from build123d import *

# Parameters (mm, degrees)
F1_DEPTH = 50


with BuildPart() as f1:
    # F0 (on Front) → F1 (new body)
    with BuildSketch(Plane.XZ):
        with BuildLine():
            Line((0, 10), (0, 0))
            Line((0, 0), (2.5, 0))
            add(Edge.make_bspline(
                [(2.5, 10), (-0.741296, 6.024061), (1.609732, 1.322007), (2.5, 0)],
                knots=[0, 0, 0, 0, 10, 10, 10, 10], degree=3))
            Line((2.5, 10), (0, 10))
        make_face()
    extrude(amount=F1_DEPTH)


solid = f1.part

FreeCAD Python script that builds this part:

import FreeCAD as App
import Part
import Sketcher
from FreeCAD import Vector

doc = App.newDocument("Part")
params = doc.addObject("Spreadsheet::Sheet", "Params")
for row, (alias, value) in enumerate([
    ("pad1_length", "50 mm"),
], start=1):
    params.set(f"A{row}", alias)
    params.set(f"B{row}", "=" + value)
    params.setAlias(f"B{row}", alias)

body = doc.addObject("PartDesign::Body", "Body")

# Sketch on XZ plane
sketch1 = body.newObject("Sketcher::SketchObject", "Sketch")
sketch1.AttachmentSupport = (doc.getObject("XZ_Plane"), [""])
sketch1.MapMode = "FlatFace"
sketch1.addGeometry([
    Part.LineSegment(Vector(0, 10, 0), Vector(0, 0, 0)),
    Part.LineSegment(Vector(0, 0, 0), Vector(2.5, 0, 0)),
    Part.BSplineCurve([Vector(2.5, 10, 0), Vector(-0.741296, 6.024061, 0), Vector(1.609732, 1.322007, 0), Vector(2.5, 0, 0)], [4, 4], [0, 10], False, 3, [1, 1, 1, 1], False),
    Part.LineSegment(Vector(2.5, 10, 0), Vector(0, 10, 0)),
], False)
sketch1.addConstraint([
    Sketcher.Constraint("Block", 2),
    Sketcher.Constraint("Coincident", 0, 2, 1, 1),
    Sketcher.Constraint("Coincident", 1, 2, 2, 2),
    Sketcher.Constraint("Coincident", 2, 1, 3, 1),
    Sketcher.Constraint("Coincident", 3, 2, 0, 1),
    Sketcher.Constraint("Vertical", 0),
    Sketcher.Constraint("Horizontal", 1),
    Sketcher.Constraint("Horizontal", 3),
    Sketcher.Constraint("PointOnObject", 3, 2, -2),
])
pad1 = body.newObject("PartDesign::Pad", "Pad")
pad1.Profile = sketch1
pad1.setExpression("Length", "Params.pad1_length")

doc.recompute()
